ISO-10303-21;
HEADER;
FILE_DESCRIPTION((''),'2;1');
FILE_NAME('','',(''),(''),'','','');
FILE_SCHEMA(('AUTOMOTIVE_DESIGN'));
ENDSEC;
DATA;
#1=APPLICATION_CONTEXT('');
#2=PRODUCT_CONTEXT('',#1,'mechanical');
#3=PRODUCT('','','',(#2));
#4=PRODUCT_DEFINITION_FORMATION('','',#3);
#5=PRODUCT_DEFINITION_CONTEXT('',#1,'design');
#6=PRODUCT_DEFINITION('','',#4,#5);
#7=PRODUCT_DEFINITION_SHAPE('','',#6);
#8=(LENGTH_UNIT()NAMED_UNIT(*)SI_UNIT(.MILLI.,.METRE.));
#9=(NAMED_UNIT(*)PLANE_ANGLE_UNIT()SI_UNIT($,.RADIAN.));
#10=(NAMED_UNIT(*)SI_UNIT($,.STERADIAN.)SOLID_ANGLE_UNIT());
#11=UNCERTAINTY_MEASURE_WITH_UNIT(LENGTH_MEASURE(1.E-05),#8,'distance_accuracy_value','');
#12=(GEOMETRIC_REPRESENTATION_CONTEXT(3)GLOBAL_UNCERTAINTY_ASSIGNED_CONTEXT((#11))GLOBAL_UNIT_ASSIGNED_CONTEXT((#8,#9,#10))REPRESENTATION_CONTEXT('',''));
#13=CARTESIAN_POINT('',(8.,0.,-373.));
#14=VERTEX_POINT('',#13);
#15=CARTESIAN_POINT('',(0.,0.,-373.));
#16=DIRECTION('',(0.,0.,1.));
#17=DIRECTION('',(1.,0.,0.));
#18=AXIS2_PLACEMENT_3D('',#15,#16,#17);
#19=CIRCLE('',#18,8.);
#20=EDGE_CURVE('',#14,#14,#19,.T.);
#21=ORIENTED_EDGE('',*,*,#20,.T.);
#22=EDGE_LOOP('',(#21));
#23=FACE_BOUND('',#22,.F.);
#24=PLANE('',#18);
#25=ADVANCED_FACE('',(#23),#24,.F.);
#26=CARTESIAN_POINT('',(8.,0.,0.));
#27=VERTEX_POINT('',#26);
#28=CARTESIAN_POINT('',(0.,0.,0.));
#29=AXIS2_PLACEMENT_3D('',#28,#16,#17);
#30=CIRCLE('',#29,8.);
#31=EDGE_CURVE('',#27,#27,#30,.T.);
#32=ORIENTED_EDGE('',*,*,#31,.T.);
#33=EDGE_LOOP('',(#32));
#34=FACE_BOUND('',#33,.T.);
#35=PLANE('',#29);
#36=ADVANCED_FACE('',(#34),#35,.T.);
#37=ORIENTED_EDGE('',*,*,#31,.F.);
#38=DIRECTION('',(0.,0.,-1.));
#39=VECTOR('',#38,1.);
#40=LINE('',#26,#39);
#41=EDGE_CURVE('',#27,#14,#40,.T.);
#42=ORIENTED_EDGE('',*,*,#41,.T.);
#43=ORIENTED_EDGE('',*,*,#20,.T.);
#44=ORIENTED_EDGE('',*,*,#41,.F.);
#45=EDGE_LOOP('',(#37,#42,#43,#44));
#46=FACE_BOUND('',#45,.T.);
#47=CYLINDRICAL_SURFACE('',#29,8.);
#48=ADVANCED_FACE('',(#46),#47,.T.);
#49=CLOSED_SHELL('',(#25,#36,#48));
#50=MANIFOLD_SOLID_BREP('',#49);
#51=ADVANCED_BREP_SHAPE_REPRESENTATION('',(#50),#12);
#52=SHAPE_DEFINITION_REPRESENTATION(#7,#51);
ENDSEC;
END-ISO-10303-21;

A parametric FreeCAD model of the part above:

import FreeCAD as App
import Part
import Sketcher
from FreeCAD import Vector

doc = App.newDocument("Part")
body = doc.addObject("PartDesign::Body", "Body")

# Sketch on XY plane
sketch1 = doc.addObject("Sketcher::SketchObject", "Sketch")
body.addObject(sketch1)
sketch1.AttachmentSupport = (doc.XY_Plane, [""])
sketch1.MapMode = "FlatFace"
sketch1.addGeometry(Part.Circle(Vector(0, 0, 0), Vector(0, 0, 1), 8), False)
sketch1.addConstraint([
    Sketcher.Constraint("Coincident", 0, 3, -1, 1),
    Sketcher.Constraint("Diameter", 0, 16.0),
])
pad1 = doc.addObject("PartDesign::Pad", "Pad")
body.addObject(pad1)
pad1.Profile = sketch1
pad1.Length = 373
pad1.Reversed = True

doc.recompute()
